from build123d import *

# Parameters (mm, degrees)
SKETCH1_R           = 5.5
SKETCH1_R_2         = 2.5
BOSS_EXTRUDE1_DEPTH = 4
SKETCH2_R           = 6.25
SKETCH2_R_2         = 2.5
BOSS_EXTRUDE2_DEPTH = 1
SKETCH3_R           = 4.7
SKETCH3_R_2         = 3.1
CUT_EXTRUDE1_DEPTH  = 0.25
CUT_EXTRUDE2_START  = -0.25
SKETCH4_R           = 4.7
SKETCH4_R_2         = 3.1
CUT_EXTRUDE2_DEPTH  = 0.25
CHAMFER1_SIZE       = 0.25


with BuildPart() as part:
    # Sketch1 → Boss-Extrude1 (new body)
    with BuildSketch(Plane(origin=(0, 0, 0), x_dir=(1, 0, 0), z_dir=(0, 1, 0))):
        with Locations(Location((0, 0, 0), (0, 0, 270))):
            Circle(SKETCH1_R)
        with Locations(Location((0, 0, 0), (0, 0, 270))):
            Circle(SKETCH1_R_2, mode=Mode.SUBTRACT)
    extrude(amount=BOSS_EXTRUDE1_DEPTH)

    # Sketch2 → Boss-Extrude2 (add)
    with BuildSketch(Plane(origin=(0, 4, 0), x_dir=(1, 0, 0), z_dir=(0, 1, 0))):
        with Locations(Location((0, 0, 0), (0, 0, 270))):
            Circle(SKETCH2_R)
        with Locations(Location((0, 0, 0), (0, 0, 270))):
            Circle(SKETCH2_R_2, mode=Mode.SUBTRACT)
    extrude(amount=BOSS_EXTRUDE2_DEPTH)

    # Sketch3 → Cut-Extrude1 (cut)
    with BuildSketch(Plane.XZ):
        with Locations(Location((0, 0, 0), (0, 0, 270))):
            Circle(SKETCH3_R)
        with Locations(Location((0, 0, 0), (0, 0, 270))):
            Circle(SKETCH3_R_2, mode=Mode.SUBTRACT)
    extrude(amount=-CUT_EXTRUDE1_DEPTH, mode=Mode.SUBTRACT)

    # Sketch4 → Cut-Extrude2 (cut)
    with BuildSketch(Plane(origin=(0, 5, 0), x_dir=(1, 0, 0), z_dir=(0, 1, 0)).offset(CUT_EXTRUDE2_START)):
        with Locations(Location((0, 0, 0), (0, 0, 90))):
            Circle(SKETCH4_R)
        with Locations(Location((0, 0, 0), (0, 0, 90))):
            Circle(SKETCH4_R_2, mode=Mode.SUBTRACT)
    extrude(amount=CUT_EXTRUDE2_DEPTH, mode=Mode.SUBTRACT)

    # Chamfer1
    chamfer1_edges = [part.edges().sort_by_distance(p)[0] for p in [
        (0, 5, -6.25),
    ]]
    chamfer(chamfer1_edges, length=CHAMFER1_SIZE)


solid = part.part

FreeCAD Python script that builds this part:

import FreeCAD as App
import Part
import Sketcher


def edges_at(feature, points):
    """Names of the edges that pass closest to the given points."""
    edges = feature.Shape.Edges
    near = lambda p: min(range(len(edges)), key=lambda i: edges[i].distToShape(Part.Vertex(*p))[0])
    return sorted({f"Edge{near(p) + 1}" for p in points})

doc = App.newDocument("Part")
body = doc.addObject("PartDesign::Body", "Body")

sketch1 = doc.addObject("Sketcher::SketchObject", "Sketch")
body.addObject(sketch1)
sketch1.AttachmentSupport = (doc.XZ_Plane, [""])
sketch1.MapMode = "FlatFace"
sketch1.addGeometry(Part.Circle(App.Vector(0, 0, 0), App.Vector(0, 0, 1), 5.5), False)
sketch1.addGeometry(Part.Circle(App.Vector(0, 0, 0), App.Vector(0, 0, 1), 2.5), False)
sketch1.addConstraint(Sketcher.Constraint("Coincident", 0, 3, -1, 1))
sketch1.addConstraint(Sketcher.Constraint("Coincident", 1, 3, -1, 1))
sketch1.addConstraint(Sketcher.Constraint("Diameter", 0, 11.0))
sketch1.addConstraint(Sketcher.Constraint("Diameter", 1, 5.0))
pad1 = doc.addObject("PartDesign::Pad", "Pad")
body.addObject(pad1)
pad1.Profile = sketch1
pad1.Length = 4
pad1.Reversed = True

sketch2 = doc.addObject("Sketcher::SketchObject", "Sketch001")
body.addObject(sketch2)
sketch2.AttachmentSupport = (doc.XZ_Plane, [""])
sketch2.MapMode = "FlatFace"
sketch2.AttachmentOffset = App.Placement(App.Vector(0, 0, -4), App.Rotation())
sketch2.addGeometry(Part.Circle(App.Vector(0, 0, 0), App.Vector(0, 0, 1), 6.25), False)
sketch2.addGeometry(Part.Circle(App.Vector(0, 0, 0), App.Vector(0, 0, 1), 2.5), False)
sketch2.addConstraint(Sketcher.Constraint("Coincident", 0, 3, -1, 1))
sketch2.addConstraint(Sketcher.Constraint("Coincident", 1, 3, -1, 1))
sketch2.addConstraint(Sketcher.Constraint("Diameter", 1, 5.0))
sketch2.addConstraint(Sketcher.Constraint("Diameter", 0, 12.5))
pad2 = doc.addObject("PartDesign::Pad", "Pad001")
body.addObject(pad2)
pad2.Profile = sketch2
pad2.Length = 1
pad2.Reversed = True

sketch3 = doc.addObject("Sketcher::SketchObject", "Sketch002")
body.addObject(sketch3)
sketch3.AttachmentSupport = (doc.XZ_Plane, [""])
sketch3.MapMode = "FlatFace"
sketch3.addGeometry(Part.Circle(App.Vector(0, 0, 0), App.Vector(0, 0, 1), 4.7), False)
sketch3.addGeometry(Part.Circle(App.Vector(0, 0, 0), App.Vector(0, 0, 1), 3.1), False)
sketch3.addConstraint(Sketcher.Constraint("Coincident", 0, 3, -1, 1))
sketch3.addConstraint(Sketcher.Constraint("Coincident", 1, 3, -1, 1))
sketch3.addConstraint(Sketcher.Constraint("Diameter", 0, 9.4))
sketch3.addConstraint(Sketcher.Constraint("Diameter", 1, 6.2))
pocket1 = doc.addObject("PartDesign::Pocket", "Pocket")
body.addObject(pocket1)
pocket1.Profile = sketch3
pocket1.Length = 0.25

sketch4 = doc.addObject("Sketcher::SketchObject", "Sketch003")
body.addObject(sketch4)
sketch4.AttachmentSupport = (doc.XZ_Plane, [""])
sketch4.MapMode = "FlatFace"
sketch4.AttachmentOffset = App.Placement(App.Vector(0, 0, -4.75), App.Rotation())
sketch4.addGeometry(Part.Circle(App.Vector(0, 0, 0), App.Vector(0, 0, 1), 4.7), False)
sketch4.addGeometry(Part.Circle(App.Vector(0, 0, 0), App.Vector(0, 0, 1), 3.1), False)
sketch4.addConstraint(Sketcher.Constraint("Coincident", 0, 3, -1, 1))
sketch4.addConstraint(Sketcher.Constraint("Coincident", 1, 3, -1, 1))
sketch4.addConstraint(Sketcher.Constraint("Diameter", 0, 9.4))
sketch4.addConstraint(Sketcher.Constraint("Diameter", 1, 6.2))
pocket2 = doc.addObject("PartDesign::Pocket", "Pocket001")
body.addObject(pocket2)
pocket2.Profile = sketch4
pocket2.Length = 0.25
doc.recompute()

chamfer = doc.addObject("PartDesign::Chamfer", "Chamfer")
body.addObject(chamfer)
chamfer.Base = (pocket2, edges_at(pocket2, [(0, 5, -6.25)]))
chamfer.Size = 0.25

doc.recompute()
